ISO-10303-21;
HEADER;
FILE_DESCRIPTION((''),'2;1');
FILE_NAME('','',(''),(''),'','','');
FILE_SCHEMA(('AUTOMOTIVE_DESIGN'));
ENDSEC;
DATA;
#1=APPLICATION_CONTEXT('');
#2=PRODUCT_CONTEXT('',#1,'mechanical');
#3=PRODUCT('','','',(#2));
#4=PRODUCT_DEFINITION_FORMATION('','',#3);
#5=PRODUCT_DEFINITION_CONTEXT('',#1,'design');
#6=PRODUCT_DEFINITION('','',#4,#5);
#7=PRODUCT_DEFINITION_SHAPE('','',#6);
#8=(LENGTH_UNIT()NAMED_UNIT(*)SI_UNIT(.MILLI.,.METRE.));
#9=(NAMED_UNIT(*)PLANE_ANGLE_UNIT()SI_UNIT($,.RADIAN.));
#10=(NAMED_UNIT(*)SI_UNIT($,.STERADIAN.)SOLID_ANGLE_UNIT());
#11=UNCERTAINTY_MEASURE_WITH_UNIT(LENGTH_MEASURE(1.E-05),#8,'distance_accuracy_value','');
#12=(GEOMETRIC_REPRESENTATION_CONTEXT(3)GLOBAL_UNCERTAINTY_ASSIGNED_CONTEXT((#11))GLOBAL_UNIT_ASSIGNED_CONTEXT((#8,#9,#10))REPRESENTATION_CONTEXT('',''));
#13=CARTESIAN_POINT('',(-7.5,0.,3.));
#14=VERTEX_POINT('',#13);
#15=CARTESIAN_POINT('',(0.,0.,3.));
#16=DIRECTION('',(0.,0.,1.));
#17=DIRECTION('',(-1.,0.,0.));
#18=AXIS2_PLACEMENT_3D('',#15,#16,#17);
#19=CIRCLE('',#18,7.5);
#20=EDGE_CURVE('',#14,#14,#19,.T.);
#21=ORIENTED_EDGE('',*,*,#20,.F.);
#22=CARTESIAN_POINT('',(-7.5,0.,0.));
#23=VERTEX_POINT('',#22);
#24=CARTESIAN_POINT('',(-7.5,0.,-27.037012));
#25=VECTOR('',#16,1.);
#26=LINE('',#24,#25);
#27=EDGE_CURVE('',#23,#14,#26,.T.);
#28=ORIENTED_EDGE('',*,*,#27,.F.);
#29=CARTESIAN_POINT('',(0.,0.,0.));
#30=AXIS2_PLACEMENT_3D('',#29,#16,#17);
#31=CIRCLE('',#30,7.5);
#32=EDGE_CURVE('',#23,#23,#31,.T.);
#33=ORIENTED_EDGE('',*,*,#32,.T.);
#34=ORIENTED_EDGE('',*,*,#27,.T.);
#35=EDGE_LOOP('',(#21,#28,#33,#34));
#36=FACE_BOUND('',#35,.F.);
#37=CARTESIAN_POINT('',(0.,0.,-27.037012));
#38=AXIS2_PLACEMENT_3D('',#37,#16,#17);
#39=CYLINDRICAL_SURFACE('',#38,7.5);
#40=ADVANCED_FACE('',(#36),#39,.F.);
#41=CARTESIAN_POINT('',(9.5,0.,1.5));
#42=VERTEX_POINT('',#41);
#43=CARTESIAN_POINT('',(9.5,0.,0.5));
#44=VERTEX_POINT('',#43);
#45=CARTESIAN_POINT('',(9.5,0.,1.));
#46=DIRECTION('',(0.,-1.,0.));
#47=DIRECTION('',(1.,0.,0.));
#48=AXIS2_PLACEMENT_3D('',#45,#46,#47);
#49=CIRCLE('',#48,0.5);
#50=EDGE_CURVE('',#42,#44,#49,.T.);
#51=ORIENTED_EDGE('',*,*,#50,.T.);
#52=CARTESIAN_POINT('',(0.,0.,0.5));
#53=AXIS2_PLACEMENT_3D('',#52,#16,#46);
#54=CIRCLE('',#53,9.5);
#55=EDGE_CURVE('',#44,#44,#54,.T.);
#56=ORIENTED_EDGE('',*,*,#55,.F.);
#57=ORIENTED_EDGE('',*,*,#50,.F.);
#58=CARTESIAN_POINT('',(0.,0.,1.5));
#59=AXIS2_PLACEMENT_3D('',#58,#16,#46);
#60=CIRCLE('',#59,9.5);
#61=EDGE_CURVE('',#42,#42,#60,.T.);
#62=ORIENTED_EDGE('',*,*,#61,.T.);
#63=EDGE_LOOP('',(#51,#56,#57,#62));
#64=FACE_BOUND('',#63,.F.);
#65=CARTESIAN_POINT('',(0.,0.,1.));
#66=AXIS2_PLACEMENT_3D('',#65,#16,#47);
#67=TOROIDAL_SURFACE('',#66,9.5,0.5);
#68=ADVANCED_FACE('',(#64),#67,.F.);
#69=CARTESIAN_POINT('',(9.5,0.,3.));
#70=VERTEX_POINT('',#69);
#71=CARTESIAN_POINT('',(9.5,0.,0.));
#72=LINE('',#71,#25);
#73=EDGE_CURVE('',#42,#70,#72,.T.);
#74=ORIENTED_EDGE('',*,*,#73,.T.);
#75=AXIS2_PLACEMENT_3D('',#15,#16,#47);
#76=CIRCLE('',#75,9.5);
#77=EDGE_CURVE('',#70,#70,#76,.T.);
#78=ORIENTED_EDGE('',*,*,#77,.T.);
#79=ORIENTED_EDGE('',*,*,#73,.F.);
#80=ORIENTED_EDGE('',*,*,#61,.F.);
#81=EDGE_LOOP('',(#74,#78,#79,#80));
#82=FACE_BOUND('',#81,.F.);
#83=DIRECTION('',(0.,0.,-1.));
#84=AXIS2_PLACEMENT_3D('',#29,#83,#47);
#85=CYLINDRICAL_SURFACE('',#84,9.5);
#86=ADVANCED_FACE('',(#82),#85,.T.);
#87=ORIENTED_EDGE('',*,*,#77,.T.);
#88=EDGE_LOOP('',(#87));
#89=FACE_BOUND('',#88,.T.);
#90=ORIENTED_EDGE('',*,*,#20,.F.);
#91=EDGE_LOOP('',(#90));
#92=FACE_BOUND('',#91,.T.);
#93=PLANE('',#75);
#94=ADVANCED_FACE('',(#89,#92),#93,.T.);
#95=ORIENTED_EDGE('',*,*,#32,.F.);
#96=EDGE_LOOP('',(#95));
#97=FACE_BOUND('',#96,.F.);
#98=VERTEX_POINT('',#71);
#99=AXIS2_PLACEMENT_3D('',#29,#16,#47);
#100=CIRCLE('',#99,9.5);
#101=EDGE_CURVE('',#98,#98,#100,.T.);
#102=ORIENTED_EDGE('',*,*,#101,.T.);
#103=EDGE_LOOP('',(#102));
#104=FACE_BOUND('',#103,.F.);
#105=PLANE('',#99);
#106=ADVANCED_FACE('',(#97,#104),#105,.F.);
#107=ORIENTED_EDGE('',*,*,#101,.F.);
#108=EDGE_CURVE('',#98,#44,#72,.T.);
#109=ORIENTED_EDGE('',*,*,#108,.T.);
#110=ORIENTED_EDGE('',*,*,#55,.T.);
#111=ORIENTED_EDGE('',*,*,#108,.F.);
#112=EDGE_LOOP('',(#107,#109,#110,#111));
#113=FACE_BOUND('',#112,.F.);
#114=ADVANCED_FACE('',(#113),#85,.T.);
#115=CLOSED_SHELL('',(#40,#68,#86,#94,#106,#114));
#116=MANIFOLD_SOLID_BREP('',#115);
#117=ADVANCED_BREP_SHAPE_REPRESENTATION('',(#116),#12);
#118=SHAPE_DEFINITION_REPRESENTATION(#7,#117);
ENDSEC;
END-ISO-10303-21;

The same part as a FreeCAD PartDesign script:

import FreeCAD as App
import Part
import Sketcher
from FreeCAD import Vector
Q = App.Units.Quantity

doc = App.newDocument("Part")
params = doc.addObject("Spreadsheet::Sheet", "Params")
for row, (alias, value) in enumerate([
    ("sketch1_diameter", "19 mm"),
    ("pad1_length", "3 mm"),
    ("sketch2_diameter", "1 mm"),
    ("sketch3_diameter", "19 mm"),
    ("sketch4_diameter", "15 mm"),
    ("hole_diameter", "15 mm"),
], start=1):
    params.set(f"A{row}", alias)
    params.set(f"B{row}", "=" + value)
    params.setAlias(f"B{row}", alias)

body = doc.addObject("PartDesign::Body", "Body")

sketch1 = body.newObject("Sketcher::SketchObject", "Sketch")
sketch1.AttachmentSupport = (doc.getObject("XY_Plane"), [""])
sketch1.MapMode = "FlatFace"
sketch1.addGeometry(Part.Circle(Vector(0, 0, 0), Vector(0, 0, 1), 9.5), False)
sketch1.addConstraint([
    Sketcher.Constraint("Coincident", 0, 3, -1, 1),
    Sketcher.Constraint("Diameter", 0, Q("19 mm")),
])
sketch1.setExpression("Constraints[1]", "Params.sketch1_diameter")
pad1 = body.newObject("PartDesign::Pad", "Pad")
pad1.Profile = sketch1
pad1.setExpression("Length", "Params.pad1_length")

sketch2 = body.newObject("Sketcher::SketchObject", "Sketch001")
sketch2.AttachmentSupport = (doc.getObject("XZ_Plane"), [""])
sketch2.MapMode = "FlatFace"
sketch2.addGeometry(Part.Circle(Vector(9.5, 1, 0), Vector(0, 0, 1), 0.5), False)
sketch2.addConstraint([
    Sketcher.Constraint("Diameter", 0, Q("1 mm")),
    Sketcher.Constraint("DistanceY", -1, 1, 0, 3, Q("1 mm")),
    Sketcher.Constraint("DistanceX", -1, 1, 0, 3, Q("9.5 mm")),
])
sketch2.setExpression("Constraints[0]", "Params.sketch2_diameter")

sketch3 = body.newObject("Sketcher::SketchObject", "Sketch002")
sketch3.AttachmentSupport = (doc.getObject("XY_Plane"), [""])
sketch3.MapMode = "FlatFace"
sketch3.AttachmentOffset = App.Placement(Vector(0, 0, 1), App.Rotation())
sketch3.addGeometry(Part.Circle(Vector(0, 0, 0), Vector(0, 0, 1), 9.5), False)
sketch3.addConstraint([
    Sketcher.Constraint("Coincident", 0, 3, -1, 1),
    Sketcher.Constraint("Diameter", 0, Q("19 mm")),
])
sketch3.setExpression("Constraints[1]", "Params.sketch3_diameter")
doc.recompute()

subtractivepipe = body.newObject("PartDesign::SubtractivePipe", "SubtractivePipe")
subtractivepipe.Profile = sketch2
subtractivepipe.Spine = (sketch3, ["Edge1"])

sketch4 = body.newObject("Sketcher::SketchObject", "Sketch003")
sketch4.AttachmentSupport = (doc.getObject("XY_Plane"), [""])
sketch4.MapMode = "FlatFace"
sketch4.addGeometry(Part.Circle(Vector(0, 0, 0), Vector(0, 0, 1), 7.5), False)
sketch4.addConstraint([
    Sketcher.Constraint("Coincident", 0, 3, -1, 1),
    Sketcher.Constraint("Diameter", 0, Q("15 mm")),
])
sketch4.setExpression("Constraints[1]", "Params.sketch4_diameter")
doc.recompute()
hole = body.newObject("PartDesign::Hole", "Hole")
hole.Profile = sketch4
hole.ThreadType = "None"
hole.setExpression("Diameter", "Params.hole_diameter")
hole.DepthType = "ThroughAll"
hole.Reversed = True

doc.recompute()
